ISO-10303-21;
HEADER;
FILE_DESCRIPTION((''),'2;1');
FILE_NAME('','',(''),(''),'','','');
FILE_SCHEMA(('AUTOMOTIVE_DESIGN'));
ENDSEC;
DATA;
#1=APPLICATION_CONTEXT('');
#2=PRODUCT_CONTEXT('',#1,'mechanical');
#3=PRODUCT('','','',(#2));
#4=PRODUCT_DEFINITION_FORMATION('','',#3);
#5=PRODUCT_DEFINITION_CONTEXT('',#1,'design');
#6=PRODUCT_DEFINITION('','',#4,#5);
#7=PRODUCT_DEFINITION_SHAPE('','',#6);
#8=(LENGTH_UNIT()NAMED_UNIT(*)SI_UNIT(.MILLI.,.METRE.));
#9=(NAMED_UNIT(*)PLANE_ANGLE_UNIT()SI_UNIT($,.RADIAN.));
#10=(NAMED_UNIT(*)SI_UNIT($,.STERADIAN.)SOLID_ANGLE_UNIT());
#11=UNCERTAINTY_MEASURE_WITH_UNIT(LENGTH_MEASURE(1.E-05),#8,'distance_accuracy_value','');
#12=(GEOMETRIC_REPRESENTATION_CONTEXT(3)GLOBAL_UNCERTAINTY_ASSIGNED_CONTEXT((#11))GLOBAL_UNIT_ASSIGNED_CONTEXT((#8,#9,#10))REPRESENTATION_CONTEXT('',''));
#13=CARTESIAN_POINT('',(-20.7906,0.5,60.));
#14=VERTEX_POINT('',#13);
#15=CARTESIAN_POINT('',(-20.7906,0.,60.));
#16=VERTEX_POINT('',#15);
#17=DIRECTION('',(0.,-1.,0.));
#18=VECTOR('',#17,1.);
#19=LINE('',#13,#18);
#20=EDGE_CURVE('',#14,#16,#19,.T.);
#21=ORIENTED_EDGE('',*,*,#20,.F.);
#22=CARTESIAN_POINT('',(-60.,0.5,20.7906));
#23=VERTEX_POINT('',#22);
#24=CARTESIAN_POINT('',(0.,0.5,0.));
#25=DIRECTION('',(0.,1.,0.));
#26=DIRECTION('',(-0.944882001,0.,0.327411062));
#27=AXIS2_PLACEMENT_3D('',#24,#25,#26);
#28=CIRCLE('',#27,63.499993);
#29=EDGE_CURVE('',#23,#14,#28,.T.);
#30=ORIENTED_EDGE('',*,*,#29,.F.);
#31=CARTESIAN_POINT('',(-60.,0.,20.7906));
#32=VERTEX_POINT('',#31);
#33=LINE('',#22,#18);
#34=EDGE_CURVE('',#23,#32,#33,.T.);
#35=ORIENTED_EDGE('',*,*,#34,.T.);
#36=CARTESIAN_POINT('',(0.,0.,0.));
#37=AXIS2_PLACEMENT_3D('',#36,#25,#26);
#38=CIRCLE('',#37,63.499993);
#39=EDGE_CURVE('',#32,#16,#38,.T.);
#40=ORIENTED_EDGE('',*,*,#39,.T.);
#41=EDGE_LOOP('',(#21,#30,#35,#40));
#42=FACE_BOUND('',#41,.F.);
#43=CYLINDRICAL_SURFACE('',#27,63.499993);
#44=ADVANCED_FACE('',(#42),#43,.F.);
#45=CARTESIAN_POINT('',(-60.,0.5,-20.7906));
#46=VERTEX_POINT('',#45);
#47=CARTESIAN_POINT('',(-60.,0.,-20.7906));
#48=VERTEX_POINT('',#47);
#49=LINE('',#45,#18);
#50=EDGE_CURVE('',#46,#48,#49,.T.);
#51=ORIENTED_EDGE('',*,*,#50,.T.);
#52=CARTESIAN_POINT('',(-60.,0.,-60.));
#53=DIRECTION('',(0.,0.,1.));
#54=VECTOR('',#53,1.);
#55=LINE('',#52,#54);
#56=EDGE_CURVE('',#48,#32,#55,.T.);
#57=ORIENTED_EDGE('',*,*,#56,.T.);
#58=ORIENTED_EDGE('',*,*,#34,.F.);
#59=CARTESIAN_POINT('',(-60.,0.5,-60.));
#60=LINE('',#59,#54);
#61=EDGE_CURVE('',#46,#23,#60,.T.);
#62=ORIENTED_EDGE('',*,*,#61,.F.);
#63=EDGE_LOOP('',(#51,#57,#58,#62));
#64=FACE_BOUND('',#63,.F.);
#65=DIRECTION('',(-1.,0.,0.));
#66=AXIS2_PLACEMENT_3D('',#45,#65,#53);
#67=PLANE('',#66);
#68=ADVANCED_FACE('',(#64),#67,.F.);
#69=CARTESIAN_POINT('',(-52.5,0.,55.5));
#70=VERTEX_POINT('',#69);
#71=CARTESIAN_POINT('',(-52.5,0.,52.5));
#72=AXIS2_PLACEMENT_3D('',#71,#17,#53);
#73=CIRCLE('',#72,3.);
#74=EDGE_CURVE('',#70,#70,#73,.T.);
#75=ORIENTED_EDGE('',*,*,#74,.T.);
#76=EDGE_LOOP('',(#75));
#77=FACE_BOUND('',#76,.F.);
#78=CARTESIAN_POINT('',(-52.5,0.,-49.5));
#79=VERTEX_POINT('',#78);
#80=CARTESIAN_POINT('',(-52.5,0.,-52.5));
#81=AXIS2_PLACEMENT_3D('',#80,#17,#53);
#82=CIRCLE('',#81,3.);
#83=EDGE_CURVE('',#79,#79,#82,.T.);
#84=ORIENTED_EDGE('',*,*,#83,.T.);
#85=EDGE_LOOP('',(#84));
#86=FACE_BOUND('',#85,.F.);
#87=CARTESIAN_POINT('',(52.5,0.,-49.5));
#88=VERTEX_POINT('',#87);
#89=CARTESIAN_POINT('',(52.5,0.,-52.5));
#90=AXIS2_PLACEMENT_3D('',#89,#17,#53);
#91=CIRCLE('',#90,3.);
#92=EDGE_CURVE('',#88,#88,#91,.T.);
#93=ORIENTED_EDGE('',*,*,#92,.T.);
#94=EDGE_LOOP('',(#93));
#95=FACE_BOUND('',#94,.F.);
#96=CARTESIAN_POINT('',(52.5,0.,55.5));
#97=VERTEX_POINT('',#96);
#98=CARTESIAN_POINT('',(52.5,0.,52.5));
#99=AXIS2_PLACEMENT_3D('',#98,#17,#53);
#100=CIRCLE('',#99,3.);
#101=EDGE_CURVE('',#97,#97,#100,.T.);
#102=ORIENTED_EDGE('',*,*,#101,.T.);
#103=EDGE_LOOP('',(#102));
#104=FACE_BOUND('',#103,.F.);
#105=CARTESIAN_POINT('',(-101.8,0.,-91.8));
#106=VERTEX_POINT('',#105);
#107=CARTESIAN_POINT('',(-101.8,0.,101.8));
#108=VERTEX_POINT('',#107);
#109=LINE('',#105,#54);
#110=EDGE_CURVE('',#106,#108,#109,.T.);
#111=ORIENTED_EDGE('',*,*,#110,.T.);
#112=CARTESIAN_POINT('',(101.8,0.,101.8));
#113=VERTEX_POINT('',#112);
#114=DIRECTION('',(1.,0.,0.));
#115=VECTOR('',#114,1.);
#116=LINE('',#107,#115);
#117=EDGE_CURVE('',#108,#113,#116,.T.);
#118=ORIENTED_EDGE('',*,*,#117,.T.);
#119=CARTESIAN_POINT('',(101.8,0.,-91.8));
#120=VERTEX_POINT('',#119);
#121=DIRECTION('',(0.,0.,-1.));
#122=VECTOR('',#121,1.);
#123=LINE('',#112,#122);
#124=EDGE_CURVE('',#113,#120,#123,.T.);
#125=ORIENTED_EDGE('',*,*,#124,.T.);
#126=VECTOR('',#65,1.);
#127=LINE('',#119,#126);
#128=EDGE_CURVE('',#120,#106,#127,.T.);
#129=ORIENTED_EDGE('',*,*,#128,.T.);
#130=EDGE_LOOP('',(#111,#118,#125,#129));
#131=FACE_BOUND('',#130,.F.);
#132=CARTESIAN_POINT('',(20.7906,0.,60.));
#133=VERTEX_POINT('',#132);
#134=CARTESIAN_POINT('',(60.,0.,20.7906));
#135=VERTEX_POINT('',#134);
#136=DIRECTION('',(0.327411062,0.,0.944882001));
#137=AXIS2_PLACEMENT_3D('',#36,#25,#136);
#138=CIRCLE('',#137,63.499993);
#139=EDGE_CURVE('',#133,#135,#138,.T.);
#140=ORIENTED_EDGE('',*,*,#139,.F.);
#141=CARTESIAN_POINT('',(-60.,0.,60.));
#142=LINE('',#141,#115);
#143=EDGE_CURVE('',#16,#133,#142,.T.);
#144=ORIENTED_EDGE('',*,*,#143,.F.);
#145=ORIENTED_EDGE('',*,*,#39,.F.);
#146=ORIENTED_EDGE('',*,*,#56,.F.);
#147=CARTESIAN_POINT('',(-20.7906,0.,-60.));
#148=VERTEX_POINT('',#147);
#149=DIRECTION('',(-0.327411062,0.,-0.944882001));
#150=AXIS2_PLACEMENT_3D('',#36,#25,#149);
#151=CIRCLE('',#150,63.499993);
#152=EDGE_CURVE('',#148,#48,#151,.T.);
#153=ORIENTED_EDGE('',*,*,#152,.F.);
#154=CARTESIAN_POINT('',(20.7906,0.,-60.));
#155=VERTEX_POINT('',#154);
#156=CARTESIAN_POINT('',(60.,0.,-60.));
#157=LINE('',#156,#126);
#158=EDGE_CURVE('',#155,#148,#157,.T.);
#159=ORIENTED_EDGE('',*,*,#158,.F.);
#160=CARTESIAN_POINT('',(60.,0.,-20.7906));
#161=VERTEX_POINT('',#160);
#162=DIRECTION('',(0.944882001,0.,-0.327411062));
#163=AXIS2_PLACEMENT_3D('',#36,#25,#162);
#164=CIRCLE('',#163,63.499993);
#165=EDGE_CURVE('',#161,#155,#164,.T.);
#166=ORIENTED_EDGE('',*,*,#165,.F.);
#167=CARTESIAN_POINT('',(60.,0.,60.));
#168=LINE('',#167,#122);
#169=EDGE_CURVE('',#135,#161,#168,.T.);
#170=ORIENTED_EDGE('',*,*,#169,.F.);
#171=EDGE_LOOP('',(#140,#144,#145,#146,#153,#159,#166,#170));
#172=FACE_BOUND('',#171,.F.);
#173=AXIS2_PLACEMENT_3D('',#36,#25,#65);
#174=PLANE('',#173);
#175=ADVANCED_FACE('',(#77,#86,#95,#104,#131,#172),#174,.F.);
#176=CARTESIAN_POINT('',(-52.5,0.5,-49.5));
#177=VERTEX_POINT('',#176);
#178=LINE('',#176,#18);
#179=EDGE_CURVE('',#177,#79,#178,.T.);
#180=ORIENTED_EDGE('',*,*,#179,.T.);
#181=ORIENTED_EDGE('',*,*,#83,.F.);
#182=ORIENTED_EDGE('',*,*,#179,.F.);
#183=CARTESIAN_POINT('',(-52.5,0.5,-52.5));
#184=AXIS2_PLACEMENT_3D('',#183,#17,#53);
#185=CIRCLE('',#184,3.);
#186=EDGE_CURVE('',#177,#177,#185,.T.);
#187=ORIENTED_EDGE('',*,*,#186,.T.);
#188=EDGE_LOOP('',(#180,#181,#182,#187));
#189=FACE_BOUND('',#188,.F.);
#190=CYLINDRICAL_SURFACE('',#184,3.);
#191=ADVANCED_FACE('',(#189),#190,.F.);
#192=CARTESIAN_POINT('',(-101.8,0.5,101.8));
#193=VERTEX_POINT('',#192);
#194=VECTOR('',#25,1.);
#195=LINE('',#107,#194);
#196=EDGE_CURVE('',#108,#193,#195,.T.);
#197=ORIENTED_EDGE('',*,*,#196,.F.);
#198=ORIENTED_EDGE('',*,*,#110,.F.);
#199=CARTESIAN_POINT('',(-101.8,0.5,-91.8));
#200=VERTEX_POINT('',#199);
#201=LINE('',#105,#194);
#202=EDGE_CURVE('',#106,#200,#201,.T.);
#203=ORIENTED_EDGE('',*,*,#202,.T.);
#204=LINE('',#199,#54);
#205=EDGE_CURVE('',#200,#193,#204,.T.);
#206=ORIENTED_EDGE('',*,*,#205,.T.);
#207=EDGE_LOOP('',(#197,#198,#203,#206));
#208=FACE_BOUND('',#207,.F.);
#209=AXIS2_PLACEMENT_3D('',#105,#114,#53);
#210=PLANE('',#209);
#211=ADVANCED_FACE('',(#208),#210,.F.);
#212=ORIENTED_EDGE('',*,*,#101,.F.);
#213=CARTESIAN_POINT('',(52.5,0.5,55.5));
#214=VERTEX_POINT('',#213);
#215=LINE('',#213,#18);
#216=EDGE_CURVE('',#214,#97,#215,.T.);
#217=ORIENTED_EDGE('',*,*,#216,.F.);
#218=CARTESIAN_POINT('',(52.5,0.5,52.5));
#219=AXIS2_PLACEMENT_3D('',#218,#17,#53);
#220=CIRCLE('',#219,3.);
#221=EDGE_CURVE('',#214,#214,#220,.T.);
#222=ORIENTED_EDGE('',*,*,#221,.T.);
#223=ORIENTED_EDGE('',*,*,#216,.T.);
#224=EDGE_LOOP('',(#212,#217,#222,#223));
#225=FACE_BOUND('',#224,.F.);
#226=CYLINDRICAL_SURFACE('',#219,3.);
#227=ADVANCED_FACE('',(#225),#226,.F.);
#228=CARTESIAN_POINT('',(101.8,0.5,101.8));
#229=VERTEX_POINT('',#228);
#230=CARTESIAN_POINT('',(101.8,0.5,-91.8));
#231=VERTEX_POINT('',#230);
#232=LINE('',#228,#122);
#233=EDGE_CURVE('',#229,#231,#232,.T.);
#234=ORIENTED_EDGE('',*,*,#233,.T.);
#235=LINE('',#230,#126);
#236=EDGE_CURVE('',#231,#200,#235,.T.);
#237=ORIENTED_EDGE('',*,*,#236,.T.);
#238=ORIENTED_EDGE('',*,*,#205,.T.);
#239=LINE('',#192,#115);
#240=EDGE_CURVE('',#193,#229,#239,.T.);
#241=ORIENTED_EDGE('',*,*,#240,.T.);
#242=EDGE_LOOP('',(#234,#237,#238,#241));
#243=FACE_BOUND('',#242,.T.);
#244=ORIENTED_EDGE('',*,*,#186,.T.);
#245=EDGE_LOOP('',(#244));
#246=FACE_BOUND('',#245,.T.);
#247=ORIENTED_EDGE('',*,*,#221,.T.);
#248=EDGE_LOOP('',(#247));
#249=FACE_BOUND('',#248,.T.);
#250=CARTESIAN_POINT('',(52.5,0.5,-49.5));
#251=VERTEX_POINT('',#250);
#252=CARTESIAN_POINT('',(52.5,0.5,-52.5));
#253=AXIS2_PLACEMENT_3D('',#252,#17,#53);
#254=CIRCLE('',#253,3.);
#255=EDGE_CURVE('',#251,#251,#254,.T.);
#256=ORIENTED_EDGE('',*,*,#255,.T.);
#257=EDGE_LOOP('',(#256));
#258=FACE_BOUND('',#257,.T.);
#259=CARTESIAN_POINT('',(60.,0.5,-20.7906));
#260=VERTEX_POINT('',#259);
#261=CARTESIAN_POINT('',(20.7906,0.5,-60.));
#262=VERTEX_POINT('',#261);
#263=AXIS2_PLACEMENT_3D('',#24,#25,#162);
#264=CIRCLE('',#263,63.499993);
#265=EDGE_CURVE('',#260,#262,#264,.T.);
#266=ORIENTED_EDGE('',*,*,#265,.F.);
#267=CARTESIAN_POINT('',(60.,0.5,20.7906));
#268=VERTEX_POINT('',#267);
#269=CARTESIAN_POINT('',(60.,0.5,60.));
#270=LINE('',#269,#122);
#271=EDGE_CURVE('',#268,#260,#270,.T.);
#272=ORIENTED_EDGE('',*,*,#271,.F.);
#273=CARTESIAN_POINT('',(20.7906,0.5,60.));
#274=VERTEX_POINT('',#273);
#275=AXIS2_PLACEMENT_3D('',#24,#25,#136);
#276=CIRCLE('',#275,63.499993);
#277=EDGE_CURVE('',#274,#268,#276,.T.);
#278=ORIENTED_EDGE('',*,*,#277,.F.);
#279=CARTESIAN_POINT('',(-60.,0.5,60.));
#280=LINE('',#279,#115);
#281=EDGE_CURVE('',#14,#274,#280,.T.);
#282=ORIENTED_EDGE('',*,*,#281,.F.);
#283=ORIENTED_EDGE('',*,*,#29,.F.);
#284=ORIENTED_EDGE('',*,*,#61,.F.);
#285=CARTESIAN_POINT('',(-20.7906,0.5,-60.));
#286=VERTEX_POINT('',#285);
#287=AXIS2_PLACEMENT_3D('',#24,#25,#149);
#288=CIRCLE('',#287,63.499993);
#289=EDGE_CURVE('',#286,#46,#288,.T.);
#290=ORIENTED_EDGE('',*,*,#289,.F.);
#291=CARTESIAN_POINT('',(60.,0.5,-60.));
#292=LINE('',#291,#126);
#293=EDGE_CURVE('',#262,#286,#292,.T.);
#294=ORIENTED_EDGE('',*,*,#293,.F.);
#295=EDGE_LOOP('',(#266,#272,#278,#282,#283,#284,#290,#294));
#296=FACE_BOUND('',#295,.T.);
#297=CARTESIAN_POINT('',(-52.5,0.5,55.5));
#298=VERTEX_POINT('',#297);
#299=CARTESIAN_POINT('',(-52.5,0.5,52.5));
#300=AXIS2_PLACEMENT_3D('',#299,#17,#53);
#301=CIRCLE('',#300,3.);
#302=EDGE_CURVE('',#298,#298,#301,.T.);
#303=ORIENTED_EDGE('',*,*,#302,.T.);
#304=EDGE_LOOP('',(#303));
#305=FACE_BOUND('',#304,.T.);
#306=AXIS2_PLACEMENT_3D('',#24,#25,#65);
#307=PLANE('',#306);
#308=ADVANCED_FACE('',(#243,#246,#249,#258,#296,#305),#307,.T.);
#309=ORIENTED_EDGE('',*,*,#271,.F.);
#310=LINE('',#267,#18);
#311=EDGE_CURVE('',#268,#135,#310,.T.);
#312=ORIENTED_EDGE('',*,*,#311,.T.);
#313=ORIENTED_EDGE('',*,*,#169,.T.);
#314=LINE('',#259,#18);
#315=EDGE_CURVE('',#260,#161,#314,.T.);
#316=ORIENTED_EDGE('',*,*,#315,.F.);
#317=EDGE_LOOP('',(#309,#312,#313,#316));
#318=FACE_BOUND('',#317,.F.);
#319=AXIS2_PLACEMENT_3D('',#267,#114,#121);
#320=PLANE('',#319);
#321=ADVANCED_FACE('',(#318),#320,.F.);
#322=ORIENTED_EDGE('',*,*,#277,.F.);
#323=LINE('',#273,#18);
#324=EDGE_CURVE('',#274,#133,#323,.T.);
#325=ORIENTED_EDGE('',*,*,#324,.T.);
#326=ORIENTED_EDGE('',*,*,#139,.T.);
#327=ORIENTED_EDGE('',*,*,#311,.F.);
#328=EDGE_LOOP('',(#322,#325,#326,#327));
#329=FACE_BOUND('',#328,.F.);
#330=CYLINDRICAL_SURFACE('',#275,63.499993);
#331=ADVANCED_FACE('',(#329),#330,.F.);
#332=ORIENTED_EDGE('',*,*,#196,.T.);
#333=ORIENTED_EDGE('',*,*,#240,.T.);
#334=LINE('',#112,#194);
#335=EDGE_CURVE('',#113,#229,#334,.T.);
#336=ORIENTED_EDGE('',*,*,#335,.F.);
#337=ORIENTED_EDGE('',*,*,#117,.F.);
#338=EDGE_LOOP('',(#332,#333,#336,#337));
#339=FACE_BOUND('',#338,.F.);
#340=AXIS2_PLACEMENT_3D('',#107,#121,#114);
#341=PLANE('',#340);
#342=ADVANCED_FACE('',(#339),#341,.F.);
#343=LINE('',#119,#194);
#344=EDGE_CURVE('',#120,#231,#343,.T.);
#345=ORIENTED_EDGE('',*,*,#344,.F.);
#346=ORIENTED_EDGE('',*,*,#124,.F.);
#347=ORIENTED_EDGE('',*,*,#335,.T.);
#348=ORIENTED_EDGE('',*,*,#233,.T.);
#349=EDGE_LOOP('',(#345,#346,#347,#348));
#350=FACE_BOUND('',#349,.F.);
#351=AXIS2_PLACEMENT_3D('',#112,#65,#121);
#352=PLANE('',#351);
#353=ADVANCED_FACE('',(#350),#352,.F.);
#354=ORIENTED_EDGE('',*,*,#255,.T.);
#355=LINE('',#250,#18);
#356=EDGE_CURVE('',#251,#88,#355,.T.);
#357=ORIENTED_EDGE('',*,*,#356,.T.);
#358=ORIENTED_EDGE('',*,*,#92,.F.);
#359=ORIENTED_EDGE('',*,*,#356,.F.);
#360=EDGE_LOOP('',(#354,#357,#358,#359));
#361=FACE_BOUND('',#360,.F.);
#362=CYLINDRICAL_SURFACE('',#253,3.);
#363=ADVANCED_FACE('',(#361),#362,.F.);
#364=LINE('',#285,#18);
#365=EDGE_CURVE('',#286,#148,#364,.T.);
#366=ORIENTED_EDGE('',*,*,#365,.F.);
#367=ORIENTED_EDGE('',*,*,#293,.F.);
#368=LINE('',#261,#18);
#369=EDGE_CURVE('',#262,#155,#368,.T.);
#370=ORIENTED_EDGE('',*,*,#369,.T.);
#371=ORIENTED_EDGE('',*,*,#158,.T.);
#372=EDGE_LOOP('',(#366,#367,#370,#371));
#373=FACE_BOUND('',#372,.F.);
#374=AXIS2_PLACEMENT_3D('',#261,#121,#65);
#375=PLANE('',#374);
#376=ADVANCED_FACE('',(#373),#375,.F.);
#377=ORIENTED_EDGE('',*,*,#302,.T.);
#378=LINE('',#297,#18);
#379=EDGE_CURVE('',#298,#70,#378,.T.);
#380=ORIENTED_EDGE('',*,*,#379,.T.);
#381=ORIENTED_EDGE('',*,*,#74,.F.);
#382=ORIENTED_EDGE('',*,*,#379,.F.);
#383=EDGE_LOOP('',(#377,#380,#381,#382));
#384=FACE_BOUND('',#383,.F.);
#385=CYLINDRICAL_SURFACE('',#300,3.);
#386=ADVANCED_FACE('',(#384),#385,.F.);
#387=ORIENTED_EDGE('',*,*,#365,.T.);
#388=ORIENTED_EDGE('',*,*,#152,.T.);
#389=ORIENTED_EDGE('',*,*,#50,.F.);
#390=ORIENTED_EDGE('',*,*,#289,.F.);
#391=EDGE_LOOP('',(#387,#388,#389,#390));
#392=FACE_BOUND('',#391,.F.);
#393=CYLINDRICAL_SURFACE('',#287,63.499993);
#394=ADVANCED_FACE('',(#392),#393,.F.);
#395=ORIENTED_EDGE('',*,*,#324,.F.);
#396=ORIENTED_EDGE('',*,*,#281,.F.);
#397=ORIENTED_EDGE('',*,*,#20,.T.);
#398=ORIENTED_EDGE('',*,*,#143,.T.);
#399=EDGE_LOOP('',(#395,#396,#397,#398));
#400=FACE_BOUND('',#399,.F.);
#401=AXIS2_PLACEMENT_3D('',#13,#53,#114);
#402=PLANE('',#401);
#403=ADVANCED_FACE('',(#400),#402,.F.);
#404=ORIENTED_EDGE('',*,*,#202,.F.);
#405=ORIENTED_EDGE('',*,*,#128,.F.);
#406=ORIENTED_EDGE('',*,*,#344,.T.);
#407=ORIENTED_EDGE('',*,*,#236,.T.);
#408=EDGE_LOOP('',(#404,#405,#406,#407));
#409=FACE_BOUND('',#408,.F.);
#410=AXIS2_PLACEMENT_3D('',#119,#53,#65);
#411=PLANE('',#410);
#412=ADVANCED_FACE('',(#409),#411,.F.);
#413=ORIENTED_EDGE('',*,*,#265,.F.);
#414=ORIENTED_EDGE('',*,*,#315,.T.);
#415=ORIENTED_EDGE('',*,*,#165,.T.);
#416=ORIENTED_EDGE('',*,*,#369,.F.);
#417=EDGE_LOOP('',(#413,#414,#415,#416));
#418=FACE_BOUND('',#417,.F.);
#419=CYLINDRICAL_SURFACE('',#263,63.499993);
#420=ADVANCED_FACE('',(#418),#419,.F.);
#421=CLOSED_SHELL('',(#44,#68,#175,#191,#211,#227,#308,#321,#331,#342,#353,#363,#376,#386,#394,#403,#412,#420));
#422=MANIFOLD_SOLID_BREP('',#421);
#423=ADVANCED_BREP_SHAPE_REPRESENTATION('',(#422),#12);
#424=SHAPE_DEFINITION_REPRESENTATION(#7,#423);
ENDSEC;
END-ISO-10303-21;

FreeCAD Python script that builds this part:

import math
import FreeCAD as App
import Part
import Sketcher
Q = App.Units.Quantity


def add_polygon(sketch, points):
    """Adds a closed chain of lines whose ends are joined by coincident constraints."""
    first, n = sketch.GeometryCount, len(points)
    for a, b in zip(points, points[1:] + points[:1]):
        sketch.addGeometry(Part.LineSegment(App.Vector(*a, 0), App.Vector(*b, 0)), False)
    for i in range(n):
        sketch.addConstraint(Sketcher.Constraint("Coincident", first + i, 2, first + (i + 1) % n, 1))

doc = App.newDocument("Part")
body = doc.addObject("PartDesign::Body", "Body")

sketch1 = doc.addObject("Sketcher::SketchObject", "Sketch")
body.addObject(sketch1)
sketch1.AttachmentSupport = (doc.XZ_Plane, [""])
sketch1.MapMode = "FlatFace"
add_polygon(sketch1, [(-102, -92), (-102, 102), (102, 102), (102, -92)])
sketch1.addConstraint(Sketcher.Constraint("Vertical", 0))
sketch1.addConstraint(Sketcher.Constraint("Horizontal", 1))
sketch1.addConstraint(Sketcher.Constraint("Vertical", 2))
sketch1.addConstraint(Sketcher.Constraint("Horizontal", 3))
sketch1.addConstraint(Sketcher.Constraint("DistanceX", 1, 1, 1, 2, Q("203.6 mm")))
sketch1.addConstraint(Sketcher.Constraint("DistanceY", 0, 1, 0, 2, Q("193.6 mm")))
sketch1.addConstraint(Sketcher.Constraint("DistanceX", 0, 2, -1, 1, Q("101.8 mm")))
sketch1.addConstraint(Sketcher.Constraint("DistanceY", -1, 1, 0, 2, Q("101.8 mm")))
pad1 = doc.addObject("PartDesign::Pad", "Pad")
body.addObject(pad1)
pad1.Profile = sketch1
pad1.Length = 0.5
pad1.Reversed = True

sketch2 = doc.addObject("Sketcher::SketchObject", "Sketch001")
body.addObject(sketch2)
sketch2.AttachmentSupport = (doc.XZ_Plane, [""])
sketch2.MapMode = "FlatFace"
sketch2.AttachmentOffset = App.Placement(App.Vector(0, 0, -0.5), App.Rotation())
sketch2.addGeometry(Part.Circle(App.Vector(-52.5, 52.5, 0), App.Vector(0, 0, 1), 3), False)
sketch2.addGeometry(Part.Circle(App.Vector(-52.5, -52.5, 0), App.Vector(0, 0, 1), 3), False)
sketch2.addGeometry(Part.Circle(App.Vector(52.5, 52.5, 0), App.Vector(0, 0, 1), 3), False)
sketch2.addGeometry(Part.Circle(App.Vector(52.5, -52.5, 0), App.Vector(0, 0, 1), 3), False)
sketch2.addConstraint(Sketcher.Constraint("Equal", 0, 1))
sketch2.addConstraint(Sketcher.Constraint("Equal", 1, 2))
sketch2.addConstraint(Sketcher.Constraint("Equal", 2, 3))
sketch2.addConstraint(Sketcher.Constraint("Symmetric", 1, 3, 2, 3, -1, 1))
sketch2.addConstraint(Sketcher.Constraint("Symmetric", 0, 3, 3, 3, -1, 1))
sketch2.addConstraint(Sketcher.Constraint("Symmetric", 0, 3, 2, 3, -2))
sketch2.addConstraint(Sketcher.Constraint("Diameter", 0, Q("6 mm")))
sketch2.addConstraint(Sketcher.Constraint("DistanceY", 1, 3, 0, 3, Q("105 mm")))
sketch2.addConstraint(Sketcher.Constraint("DistanceX", 0, 3, 2, 3, Q("105 mm")))
doc.recompute()
hole = doc.addObject("PartDesign::Hole", "Hole")
body.addObject(hole)
hole.Profile = sketch2
hole.ThreadType = "None"
hole.Diameter = 6
hole.DepthType = "Dimension"
hole.Depth = 0.5
hole.DrillPoint = "Angled"
hole.DrillPointAngle = 118
hole.Reversed = True

sketch3 = doc.addObject("Sketcher::SketchObject", "Sketch002")
body.addObject(sketch3)
sketch3.AttachmentSupport = (doc.XZ_Plane, [""])
sketch3.MapMode = "FlatFace"
sketch3.AttachmentOffset = App.Placement(App.Vector(0, 0, -0.5), App.Rotation())
sketch3.addGeometry(Part.ArcOfCircle(Part.Circle(App.Vector(0, 0, 0), App.Vector(0, 0, 1), 63), math.radians(109), math.radians(161)), False)
sketch3.addGeometry(Part.LineSegment(App.Vector(-21, 60, 0), App.Vector(21, 60, 0)), False)
sketch3.addGeometry(Part.ArcOfCircle(Part.Circle(App.Vector(0, 0, 0), App.Vector(0, 0, 1), 63), math.radians(19), math.radians(71)), False)
sketch3.addGeometry(Part.LineSegment(App.Vector(60, 21, 0), App.Vector(60, -21, 0)), False)
sketch3.addGeometry(Part.ArcOfCircle(Part.Circle(App.Vector(0, 0, 0), App.Vector(0, 0, 1), 63), math.radians(-71), math.radians(-19)), False)
sketch3.addGeometry(Part.LineSegment(App.Vector(21, -60, 0), App.Vector(-21, -60, 0)), False)
sketch3.addGeometry(Part.ArcOfCircle(Part.Circle(App.Vector(0, 0, 0), App.Vector(0, 0, 1), 63), math.radians(-161), math.radians(-109)), False)
sketch3.addGeometry(Part.LineSegment(App.Vector(-60, -21, 0), App.Vector(-60, 21, 0)), False)
sketch3.addConstraint(Sketcher.Constraint("Coincident", 0, 1, 1, 1))
sketch3.addConstraint(Sketcher.Constraint("Coincident", 1, 2, 2, 2))
sketch3.addConstraint(Sketcher.Constraint("Coincident", 2, 1, 3, 1))
sketch3.addConstraint(Sketcher.Constraint("Coincident", 3, 2, 4, 2))
sketch3.addConstraint(Sketcher.Constraint("Coincident", 4, 1, 5, 1))
sketch3.addConstraint(Sketcher.Constraint("Coincident", 5, 2, 6, 2))
sketch3.addConstraint(Sketcher.Constraint("Coincident", 6, 1, 7, 1))
sketch3.addConstraint(Sketcher.Constraint("Coincident", 7, 2, 0, 2))
sketch3.addConstraint(Sketcher.Constraint("Horizontal", 1))
sketch3.addConstraint(Sketcher.Constraint("Vertical", 3))
sketch3.addConstraint(Sketcher.Constraint("Horizontal", 5))
sketch3.addConstraint(Sketcher.Constraint("Vertical", 7))
sketch3.addConstraint(Sketcher.Constraint("Coincident", 0, 3, -1, 1))
sketch3.addConstraint(Sketcher.Constraint("Coincident", 2, 3, -1, 1))
sketch3.addConstraint(Sketcher.Constraint("Coincident", 4, 3, -1, 1))
sketch3.addConstraint(Sketcher.Constraint("Coincident", 6, 3, -1, 1))
sketch3.addConstraint(Sketcher.Constraint("Equal", 0, 2))
sketch3.addConstraint(Sketcher.Constraint("Equal", 2, 4))
sketch3.addConstraint(Sketcher.Constraint("Equal", 4, 6))
sketch3.addConstraint(Sketcher.Constraint("Horizontal", 3, 2, 6, 1))
sketch3.addConstraint(Sketcher.Constraint("Vertical", 1, 2, 4, 1))
sketch3.addConstraint(Sketcher.Constraint("Equal", 5, 3))
sketch3.addConstraint(Sketcher.Constraint("Radius", 0, Q("63.5 mm")))
sketch3.addConstraint(Sketcher.Constraint("DistanceY", -1, 1, 0, 1, Q("60 mm")))
pocket1 = doc.addObject("PartDesign::Pocket", "Pocket")
body.addObject(pocket1)
pocket1.Profile = sketch3
pocket1.Length = 0.5
pocket1.Reversed = True

doc.recompute()
